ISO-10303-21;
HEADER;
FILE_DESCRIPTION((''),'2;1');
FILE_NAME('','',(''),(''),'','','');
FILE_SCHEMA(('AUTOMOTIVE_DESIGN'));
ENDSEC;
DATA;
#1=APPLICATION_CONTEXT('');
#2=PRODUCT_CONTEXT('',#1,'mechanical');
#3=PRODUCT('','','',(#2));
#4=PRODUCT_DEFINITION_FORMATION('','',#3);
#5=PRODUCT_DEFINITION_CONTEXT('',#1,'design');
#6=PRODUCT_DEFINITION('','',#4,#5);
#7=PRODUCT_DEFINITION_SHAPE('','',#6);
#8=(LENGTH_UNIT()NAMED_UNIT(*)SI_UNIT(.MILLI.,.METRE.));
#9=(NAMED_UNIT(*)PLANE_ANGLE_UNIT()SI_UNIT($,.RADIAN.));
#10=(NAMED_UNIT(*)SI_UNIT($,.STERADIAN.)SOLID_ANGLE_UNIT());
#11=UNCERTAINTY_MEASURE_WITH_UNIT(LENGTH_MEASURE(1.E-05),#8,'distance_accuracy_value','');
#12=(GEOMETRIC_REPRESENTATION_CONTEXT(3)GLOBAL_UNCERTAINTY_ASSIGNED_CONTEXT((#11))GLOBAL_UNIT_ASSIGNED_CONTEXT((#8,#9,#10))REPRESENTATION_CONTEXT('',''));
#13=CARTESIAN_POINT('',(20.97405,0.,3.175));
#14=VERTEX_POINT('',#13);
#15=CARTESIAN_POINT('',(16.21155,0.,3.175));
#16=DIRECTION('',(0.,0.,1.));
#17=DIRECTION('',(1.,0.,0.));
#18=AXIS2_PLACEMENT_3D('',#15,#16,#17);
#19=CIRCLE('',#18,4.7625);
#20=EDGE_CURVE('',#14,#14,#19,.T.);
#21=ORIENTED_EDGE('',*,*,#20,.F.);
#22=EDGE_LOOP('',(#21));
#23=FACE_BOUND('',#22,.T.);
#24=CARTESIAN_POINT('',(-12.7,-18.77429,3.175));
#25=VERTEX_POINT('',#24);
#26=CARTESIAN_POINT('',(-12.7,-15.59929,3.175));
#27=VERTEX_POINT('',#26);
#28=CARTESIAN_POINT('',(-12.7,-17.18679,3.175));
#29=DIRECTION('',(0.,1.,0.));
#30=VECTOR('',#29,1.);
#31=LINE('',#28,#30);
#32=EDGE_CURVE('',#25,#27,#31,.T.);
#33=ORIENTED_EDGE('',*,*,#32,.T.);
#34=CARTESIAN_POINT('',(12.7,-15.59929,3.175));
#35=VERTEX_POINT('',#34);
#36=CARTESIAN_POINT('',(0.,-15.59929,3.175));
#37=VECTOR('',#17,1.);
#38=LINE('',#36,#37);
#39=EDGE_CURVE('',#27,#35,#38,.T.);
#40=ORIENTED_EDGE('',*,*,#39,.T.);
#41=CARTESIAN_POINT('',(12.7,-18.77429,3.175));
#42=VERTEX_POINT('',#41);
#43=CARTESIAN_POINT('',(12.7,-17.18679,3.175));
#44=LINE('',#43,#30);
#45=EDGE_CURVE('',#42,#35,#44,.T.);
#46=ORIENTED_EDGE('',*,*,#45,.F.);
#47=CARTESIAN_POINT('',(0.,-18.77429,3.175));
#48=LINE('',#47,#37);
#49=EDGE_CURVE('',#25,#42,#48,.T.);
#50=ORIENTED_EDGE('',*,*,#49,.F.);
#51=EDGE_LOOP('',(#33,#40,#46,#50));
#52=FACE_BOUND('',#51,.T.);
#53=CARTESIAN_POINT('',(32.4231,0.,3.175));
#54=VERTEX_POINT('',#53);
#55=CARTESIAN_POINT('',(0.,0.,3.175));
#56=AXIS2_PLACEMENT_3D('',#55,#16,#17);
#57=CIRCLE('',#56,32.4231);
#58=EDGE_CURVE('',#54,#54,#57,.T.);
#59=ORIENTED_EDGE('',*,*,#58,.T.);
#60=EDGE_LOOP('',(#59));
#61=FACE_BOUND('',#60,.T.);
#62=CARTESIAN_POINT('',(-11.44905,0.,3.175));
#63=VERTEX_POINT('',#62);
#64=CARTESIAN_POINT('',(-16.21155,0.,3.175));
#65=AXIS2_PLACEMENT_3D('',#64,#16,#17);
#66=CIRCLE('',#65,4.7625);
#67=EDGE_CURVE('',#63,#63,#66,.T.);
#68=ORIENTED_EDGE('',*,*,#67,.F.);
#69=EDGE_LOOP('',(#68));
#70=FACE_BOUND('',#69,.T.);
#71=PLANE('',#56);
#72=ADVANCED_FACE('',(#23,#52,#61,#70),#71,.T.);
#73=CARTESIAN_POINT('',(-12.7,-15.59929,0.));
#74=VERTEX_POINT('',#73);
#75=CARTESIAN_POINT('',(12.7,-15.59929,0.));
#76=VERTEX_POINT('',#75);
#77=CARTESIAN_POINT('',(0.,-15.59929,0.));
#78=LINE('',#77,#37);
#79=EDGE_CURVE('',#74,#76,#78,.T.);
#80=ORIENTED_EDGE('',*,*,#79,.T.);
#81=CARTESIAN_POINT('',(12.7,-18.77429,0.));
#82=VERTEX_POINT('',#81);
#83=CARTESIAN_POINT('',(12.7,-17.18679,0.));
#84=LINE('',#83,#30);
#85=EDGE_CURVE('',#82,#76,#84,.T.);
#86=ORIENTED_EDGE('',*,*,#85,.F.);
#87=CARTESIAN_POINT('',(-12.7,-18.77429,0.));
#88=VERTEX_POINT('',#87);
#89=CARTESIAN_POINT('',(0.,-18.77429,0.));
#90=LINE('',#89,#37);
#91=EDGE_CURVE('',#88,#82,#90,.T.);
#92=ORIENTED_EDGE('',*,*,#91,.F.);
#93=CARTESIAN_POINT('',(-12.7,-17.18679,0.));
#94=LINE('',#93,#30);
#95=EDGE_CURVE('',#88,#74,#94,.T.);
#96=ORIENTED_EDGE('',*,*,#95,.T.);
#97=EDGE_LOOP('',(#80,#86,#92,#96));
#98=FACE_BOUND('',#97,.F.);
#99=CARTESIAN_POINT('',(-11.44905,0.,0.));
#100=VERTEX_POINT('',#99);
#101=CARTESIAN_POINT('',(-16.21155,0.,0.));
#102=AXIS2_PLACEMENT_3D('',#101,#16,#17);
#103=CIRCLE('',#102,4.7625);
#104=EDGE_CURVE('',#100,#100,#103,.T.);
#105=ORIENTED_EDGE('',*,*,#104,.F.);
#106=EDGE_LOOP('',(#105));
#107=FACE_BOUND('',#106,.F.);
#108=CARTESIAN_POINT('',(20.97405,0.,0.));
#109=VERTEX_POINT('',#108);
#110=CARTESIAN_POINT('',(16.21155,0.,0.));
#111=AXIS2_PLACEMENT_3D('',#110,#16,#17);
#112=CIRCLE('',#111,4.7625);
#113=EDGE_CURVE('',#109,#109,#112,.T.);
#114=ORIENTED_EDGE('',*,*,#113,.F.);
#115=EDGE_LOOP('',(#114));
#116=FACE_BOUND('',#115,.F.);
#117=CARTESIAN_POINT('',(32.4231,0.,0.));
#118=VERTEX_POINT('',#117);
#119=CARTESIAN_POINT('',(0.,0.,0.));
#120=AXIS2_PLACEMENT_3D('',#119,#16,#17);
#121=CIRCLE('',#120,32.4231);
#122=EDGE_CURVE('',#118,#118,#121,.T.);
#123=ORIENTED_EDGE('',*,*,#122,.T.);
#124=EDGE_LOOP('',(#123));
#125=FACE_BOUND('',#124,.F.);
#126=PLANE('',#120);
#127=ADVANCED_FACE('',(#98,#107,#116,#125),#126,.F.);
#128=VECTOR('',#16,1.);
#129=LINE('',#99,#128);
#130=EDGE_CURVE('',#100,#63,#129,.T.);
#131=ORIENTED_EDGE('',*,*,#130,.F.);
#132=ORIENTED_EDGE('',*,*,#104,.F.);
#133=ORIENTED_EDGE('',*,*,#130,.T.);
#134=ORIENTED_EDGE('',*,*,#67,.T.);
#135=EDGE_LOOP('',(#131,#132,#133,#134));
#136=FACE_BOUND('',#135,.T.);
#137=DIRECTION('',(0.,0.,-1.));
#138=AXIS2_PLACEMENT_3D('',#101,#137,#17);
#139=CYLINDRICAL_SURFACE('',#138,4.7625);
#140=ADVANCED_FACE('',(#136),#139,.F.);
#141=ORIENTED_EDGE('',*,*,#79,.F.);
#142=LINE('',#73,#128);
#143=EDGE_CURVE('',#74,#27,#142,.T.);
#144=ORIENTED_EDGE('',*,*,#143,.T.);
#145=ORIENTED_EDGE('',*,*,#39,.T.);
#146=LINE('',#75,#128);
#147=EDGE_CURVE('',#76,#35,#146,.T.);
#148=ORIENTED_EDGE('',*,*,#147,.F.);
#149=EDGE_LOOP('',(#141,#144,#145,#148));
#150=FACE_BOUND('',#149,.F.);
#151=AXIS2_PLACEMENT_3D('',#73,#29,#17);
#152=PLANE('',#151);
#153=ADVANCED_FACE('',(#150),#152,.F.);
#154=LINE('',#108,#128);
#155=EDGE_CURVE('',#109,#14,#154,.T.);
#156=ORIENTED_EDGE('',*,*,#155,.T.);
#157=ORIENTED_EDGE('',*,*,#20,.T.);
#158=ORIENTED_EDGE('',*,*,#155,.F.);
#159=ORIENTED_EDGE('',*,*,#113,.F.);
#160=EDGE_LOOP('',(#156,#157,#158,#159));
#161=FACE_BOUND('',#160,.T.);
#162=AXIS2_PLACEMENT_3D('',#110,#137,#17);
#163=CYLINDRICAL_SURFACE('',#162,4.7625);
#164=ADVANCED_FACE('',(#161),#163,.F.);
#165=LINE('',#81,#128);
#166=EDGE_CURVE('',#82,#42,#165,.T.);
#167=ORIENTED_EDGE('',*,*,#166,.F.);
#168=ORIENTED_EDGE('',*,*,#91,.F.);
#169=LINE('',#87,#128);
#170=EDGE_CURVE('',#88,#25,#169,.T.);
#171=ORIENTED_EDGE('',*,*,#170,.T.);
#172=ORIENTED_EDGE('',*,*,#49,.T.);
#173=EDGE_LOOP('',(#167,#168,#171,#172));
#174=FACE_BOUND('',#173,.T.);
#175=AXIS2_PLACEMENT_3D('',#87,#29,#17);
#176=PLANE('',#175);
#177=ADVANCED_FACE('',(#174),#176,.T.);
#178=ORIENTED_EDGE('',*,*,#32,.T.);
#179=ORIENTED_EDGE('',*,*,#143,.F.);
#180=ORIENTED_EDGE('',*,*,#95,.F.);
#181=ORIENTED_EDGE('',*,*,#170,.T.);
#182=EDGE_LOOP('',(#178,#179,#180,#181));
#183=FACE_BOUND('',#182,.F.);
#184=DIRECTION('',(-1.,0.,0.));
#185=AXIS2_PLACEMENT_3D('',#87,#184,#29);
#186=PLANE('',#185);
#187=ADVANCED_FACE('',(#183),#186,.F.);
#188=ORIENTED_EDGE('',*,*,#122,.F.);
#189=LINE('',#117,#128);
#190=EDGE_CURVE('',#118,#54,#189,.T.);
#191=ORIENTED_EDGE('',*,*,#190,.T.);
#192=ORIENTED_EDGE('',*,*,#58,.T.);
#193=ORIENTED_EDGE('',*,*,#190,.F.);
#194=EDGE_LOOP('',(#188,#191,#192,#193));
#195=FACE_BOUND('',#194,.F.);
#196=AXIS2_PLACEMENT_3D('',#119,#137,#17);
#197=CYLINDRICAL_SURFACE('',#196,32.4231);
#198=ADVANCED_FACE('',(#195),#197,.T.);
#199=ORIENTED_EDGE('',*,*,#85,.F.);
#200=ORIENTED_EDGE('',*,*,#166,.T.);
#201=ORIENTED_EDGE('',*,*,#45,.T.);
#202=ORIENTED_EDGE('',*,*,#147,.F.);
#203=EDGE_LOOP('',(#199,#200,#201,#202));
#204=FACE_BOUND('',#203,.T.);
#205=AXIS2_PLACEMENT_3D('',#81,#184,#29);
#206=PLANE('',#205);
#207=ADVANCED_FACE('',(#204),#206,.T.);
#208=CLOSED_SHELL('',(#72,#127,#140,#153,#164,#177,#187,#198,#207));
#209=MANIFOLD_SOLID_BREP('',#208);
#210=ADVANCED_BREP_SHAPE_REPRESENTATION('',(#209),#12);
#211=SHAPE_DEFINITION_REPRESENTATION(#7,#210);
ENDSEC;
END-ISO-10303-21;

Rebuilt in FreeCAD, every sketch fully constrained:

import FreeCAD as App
import Part
import Sketcher
from FreeCAD import Vector
Q = App.Units.Quantity


def add_polygon(sketch, points):
    """Adds a closed chain of lines whose ends are joined by coincident constraints."""
    first, n = sketch.GeometryCount, len(points)
    for a, b in zip(points, points[1:] + points[:1]):
        sketch.addGeometry(Part.LineSegment(App.Vector(*a, 0), App.Vector(*b, 0)), False)
    for i in range(n):
        sketch.addConstraint(Sketcher.Constraint("Coincident", first + i, 2, first + (i + 1) % n, 1))

doc = App.newDocument("Part")
body = doc.addObject("PartDesign::Body", "Body")

# Sketch on XY plane
sketch1 = body.newObject("Sketcher::SketchObject", "Sketch")
sketch1.AttachmentSupport = (doc.getObject("XY_Plane"), [""])
sketch1.MapMode = "FlatFace"
sketch1.addGeometry(Part.Circle(Vector(0, 0, 0), Vector(0, 0, 1), 32.4), False)  # 0
add_polygon(sketch1, [(12.7, -18.8), (-12.7, -18.8), (-12.7, -15.6), (12.7, -15.6)])  # lines 1-4
sketch1.addGeometry(Part.Circle(Vector(-16.2, 0, 0), Vector(0, 0, 1), 4.8), False)  # 5
sketch1.addGeometry(Part.Circle(Vector(16.2, 0, 0), Vector(0, 0, 1), 4.8), False)  # 6
sketch1.addConstraint([
    Sketcher.Constraint("Horizontal", 1),
    Sketcher.Constraint("Vertical", 2),
    Sketcher.Constraint("Horizontal", 3),
    Sketcher.Constraint("Vertical", 4),
    Sketcher.Constraint("Coincident", 0, 3, -1, 1),
    Sketcher.Constraint("Equal", 5, 6),
    Sketcher.Constraint("Symmetric", 5, 3, 6, 3, -1, 1),
    Sketcher.Constraint("PointOnObject", 5, 3, -1),
    Sketcher.Constraint("DistanceX", 1, 2, 1, 1, Q("1 in")),
    Sketcher.Constraint("Diameter", 0, Q("2.553 in")),
    Sketcher.Constraint("Diameter", 5, Q("0.375 in")),
    Sketcher.Constraint("DistanceX", 1, 2, -1, 1, Q("0.5 in")),
    Sketcher.Constraint("DistanceY", 2, 1, 2, 2, Q("0.125 in")),
    Sketcher.Constraint("DistanceX", 5, 3, 6, 3, Q("1.2765 in")),
    Sketcher.Constraint("DistanceY", 1, 2, -1, 1, Q("18.77429 mm")),
])
pad1 = body.newObject("PartDesign::Pad", "Pad")
pad1.Profile = sketch1
pad1.Length = Q("0.125 in")

doc.recompute()
